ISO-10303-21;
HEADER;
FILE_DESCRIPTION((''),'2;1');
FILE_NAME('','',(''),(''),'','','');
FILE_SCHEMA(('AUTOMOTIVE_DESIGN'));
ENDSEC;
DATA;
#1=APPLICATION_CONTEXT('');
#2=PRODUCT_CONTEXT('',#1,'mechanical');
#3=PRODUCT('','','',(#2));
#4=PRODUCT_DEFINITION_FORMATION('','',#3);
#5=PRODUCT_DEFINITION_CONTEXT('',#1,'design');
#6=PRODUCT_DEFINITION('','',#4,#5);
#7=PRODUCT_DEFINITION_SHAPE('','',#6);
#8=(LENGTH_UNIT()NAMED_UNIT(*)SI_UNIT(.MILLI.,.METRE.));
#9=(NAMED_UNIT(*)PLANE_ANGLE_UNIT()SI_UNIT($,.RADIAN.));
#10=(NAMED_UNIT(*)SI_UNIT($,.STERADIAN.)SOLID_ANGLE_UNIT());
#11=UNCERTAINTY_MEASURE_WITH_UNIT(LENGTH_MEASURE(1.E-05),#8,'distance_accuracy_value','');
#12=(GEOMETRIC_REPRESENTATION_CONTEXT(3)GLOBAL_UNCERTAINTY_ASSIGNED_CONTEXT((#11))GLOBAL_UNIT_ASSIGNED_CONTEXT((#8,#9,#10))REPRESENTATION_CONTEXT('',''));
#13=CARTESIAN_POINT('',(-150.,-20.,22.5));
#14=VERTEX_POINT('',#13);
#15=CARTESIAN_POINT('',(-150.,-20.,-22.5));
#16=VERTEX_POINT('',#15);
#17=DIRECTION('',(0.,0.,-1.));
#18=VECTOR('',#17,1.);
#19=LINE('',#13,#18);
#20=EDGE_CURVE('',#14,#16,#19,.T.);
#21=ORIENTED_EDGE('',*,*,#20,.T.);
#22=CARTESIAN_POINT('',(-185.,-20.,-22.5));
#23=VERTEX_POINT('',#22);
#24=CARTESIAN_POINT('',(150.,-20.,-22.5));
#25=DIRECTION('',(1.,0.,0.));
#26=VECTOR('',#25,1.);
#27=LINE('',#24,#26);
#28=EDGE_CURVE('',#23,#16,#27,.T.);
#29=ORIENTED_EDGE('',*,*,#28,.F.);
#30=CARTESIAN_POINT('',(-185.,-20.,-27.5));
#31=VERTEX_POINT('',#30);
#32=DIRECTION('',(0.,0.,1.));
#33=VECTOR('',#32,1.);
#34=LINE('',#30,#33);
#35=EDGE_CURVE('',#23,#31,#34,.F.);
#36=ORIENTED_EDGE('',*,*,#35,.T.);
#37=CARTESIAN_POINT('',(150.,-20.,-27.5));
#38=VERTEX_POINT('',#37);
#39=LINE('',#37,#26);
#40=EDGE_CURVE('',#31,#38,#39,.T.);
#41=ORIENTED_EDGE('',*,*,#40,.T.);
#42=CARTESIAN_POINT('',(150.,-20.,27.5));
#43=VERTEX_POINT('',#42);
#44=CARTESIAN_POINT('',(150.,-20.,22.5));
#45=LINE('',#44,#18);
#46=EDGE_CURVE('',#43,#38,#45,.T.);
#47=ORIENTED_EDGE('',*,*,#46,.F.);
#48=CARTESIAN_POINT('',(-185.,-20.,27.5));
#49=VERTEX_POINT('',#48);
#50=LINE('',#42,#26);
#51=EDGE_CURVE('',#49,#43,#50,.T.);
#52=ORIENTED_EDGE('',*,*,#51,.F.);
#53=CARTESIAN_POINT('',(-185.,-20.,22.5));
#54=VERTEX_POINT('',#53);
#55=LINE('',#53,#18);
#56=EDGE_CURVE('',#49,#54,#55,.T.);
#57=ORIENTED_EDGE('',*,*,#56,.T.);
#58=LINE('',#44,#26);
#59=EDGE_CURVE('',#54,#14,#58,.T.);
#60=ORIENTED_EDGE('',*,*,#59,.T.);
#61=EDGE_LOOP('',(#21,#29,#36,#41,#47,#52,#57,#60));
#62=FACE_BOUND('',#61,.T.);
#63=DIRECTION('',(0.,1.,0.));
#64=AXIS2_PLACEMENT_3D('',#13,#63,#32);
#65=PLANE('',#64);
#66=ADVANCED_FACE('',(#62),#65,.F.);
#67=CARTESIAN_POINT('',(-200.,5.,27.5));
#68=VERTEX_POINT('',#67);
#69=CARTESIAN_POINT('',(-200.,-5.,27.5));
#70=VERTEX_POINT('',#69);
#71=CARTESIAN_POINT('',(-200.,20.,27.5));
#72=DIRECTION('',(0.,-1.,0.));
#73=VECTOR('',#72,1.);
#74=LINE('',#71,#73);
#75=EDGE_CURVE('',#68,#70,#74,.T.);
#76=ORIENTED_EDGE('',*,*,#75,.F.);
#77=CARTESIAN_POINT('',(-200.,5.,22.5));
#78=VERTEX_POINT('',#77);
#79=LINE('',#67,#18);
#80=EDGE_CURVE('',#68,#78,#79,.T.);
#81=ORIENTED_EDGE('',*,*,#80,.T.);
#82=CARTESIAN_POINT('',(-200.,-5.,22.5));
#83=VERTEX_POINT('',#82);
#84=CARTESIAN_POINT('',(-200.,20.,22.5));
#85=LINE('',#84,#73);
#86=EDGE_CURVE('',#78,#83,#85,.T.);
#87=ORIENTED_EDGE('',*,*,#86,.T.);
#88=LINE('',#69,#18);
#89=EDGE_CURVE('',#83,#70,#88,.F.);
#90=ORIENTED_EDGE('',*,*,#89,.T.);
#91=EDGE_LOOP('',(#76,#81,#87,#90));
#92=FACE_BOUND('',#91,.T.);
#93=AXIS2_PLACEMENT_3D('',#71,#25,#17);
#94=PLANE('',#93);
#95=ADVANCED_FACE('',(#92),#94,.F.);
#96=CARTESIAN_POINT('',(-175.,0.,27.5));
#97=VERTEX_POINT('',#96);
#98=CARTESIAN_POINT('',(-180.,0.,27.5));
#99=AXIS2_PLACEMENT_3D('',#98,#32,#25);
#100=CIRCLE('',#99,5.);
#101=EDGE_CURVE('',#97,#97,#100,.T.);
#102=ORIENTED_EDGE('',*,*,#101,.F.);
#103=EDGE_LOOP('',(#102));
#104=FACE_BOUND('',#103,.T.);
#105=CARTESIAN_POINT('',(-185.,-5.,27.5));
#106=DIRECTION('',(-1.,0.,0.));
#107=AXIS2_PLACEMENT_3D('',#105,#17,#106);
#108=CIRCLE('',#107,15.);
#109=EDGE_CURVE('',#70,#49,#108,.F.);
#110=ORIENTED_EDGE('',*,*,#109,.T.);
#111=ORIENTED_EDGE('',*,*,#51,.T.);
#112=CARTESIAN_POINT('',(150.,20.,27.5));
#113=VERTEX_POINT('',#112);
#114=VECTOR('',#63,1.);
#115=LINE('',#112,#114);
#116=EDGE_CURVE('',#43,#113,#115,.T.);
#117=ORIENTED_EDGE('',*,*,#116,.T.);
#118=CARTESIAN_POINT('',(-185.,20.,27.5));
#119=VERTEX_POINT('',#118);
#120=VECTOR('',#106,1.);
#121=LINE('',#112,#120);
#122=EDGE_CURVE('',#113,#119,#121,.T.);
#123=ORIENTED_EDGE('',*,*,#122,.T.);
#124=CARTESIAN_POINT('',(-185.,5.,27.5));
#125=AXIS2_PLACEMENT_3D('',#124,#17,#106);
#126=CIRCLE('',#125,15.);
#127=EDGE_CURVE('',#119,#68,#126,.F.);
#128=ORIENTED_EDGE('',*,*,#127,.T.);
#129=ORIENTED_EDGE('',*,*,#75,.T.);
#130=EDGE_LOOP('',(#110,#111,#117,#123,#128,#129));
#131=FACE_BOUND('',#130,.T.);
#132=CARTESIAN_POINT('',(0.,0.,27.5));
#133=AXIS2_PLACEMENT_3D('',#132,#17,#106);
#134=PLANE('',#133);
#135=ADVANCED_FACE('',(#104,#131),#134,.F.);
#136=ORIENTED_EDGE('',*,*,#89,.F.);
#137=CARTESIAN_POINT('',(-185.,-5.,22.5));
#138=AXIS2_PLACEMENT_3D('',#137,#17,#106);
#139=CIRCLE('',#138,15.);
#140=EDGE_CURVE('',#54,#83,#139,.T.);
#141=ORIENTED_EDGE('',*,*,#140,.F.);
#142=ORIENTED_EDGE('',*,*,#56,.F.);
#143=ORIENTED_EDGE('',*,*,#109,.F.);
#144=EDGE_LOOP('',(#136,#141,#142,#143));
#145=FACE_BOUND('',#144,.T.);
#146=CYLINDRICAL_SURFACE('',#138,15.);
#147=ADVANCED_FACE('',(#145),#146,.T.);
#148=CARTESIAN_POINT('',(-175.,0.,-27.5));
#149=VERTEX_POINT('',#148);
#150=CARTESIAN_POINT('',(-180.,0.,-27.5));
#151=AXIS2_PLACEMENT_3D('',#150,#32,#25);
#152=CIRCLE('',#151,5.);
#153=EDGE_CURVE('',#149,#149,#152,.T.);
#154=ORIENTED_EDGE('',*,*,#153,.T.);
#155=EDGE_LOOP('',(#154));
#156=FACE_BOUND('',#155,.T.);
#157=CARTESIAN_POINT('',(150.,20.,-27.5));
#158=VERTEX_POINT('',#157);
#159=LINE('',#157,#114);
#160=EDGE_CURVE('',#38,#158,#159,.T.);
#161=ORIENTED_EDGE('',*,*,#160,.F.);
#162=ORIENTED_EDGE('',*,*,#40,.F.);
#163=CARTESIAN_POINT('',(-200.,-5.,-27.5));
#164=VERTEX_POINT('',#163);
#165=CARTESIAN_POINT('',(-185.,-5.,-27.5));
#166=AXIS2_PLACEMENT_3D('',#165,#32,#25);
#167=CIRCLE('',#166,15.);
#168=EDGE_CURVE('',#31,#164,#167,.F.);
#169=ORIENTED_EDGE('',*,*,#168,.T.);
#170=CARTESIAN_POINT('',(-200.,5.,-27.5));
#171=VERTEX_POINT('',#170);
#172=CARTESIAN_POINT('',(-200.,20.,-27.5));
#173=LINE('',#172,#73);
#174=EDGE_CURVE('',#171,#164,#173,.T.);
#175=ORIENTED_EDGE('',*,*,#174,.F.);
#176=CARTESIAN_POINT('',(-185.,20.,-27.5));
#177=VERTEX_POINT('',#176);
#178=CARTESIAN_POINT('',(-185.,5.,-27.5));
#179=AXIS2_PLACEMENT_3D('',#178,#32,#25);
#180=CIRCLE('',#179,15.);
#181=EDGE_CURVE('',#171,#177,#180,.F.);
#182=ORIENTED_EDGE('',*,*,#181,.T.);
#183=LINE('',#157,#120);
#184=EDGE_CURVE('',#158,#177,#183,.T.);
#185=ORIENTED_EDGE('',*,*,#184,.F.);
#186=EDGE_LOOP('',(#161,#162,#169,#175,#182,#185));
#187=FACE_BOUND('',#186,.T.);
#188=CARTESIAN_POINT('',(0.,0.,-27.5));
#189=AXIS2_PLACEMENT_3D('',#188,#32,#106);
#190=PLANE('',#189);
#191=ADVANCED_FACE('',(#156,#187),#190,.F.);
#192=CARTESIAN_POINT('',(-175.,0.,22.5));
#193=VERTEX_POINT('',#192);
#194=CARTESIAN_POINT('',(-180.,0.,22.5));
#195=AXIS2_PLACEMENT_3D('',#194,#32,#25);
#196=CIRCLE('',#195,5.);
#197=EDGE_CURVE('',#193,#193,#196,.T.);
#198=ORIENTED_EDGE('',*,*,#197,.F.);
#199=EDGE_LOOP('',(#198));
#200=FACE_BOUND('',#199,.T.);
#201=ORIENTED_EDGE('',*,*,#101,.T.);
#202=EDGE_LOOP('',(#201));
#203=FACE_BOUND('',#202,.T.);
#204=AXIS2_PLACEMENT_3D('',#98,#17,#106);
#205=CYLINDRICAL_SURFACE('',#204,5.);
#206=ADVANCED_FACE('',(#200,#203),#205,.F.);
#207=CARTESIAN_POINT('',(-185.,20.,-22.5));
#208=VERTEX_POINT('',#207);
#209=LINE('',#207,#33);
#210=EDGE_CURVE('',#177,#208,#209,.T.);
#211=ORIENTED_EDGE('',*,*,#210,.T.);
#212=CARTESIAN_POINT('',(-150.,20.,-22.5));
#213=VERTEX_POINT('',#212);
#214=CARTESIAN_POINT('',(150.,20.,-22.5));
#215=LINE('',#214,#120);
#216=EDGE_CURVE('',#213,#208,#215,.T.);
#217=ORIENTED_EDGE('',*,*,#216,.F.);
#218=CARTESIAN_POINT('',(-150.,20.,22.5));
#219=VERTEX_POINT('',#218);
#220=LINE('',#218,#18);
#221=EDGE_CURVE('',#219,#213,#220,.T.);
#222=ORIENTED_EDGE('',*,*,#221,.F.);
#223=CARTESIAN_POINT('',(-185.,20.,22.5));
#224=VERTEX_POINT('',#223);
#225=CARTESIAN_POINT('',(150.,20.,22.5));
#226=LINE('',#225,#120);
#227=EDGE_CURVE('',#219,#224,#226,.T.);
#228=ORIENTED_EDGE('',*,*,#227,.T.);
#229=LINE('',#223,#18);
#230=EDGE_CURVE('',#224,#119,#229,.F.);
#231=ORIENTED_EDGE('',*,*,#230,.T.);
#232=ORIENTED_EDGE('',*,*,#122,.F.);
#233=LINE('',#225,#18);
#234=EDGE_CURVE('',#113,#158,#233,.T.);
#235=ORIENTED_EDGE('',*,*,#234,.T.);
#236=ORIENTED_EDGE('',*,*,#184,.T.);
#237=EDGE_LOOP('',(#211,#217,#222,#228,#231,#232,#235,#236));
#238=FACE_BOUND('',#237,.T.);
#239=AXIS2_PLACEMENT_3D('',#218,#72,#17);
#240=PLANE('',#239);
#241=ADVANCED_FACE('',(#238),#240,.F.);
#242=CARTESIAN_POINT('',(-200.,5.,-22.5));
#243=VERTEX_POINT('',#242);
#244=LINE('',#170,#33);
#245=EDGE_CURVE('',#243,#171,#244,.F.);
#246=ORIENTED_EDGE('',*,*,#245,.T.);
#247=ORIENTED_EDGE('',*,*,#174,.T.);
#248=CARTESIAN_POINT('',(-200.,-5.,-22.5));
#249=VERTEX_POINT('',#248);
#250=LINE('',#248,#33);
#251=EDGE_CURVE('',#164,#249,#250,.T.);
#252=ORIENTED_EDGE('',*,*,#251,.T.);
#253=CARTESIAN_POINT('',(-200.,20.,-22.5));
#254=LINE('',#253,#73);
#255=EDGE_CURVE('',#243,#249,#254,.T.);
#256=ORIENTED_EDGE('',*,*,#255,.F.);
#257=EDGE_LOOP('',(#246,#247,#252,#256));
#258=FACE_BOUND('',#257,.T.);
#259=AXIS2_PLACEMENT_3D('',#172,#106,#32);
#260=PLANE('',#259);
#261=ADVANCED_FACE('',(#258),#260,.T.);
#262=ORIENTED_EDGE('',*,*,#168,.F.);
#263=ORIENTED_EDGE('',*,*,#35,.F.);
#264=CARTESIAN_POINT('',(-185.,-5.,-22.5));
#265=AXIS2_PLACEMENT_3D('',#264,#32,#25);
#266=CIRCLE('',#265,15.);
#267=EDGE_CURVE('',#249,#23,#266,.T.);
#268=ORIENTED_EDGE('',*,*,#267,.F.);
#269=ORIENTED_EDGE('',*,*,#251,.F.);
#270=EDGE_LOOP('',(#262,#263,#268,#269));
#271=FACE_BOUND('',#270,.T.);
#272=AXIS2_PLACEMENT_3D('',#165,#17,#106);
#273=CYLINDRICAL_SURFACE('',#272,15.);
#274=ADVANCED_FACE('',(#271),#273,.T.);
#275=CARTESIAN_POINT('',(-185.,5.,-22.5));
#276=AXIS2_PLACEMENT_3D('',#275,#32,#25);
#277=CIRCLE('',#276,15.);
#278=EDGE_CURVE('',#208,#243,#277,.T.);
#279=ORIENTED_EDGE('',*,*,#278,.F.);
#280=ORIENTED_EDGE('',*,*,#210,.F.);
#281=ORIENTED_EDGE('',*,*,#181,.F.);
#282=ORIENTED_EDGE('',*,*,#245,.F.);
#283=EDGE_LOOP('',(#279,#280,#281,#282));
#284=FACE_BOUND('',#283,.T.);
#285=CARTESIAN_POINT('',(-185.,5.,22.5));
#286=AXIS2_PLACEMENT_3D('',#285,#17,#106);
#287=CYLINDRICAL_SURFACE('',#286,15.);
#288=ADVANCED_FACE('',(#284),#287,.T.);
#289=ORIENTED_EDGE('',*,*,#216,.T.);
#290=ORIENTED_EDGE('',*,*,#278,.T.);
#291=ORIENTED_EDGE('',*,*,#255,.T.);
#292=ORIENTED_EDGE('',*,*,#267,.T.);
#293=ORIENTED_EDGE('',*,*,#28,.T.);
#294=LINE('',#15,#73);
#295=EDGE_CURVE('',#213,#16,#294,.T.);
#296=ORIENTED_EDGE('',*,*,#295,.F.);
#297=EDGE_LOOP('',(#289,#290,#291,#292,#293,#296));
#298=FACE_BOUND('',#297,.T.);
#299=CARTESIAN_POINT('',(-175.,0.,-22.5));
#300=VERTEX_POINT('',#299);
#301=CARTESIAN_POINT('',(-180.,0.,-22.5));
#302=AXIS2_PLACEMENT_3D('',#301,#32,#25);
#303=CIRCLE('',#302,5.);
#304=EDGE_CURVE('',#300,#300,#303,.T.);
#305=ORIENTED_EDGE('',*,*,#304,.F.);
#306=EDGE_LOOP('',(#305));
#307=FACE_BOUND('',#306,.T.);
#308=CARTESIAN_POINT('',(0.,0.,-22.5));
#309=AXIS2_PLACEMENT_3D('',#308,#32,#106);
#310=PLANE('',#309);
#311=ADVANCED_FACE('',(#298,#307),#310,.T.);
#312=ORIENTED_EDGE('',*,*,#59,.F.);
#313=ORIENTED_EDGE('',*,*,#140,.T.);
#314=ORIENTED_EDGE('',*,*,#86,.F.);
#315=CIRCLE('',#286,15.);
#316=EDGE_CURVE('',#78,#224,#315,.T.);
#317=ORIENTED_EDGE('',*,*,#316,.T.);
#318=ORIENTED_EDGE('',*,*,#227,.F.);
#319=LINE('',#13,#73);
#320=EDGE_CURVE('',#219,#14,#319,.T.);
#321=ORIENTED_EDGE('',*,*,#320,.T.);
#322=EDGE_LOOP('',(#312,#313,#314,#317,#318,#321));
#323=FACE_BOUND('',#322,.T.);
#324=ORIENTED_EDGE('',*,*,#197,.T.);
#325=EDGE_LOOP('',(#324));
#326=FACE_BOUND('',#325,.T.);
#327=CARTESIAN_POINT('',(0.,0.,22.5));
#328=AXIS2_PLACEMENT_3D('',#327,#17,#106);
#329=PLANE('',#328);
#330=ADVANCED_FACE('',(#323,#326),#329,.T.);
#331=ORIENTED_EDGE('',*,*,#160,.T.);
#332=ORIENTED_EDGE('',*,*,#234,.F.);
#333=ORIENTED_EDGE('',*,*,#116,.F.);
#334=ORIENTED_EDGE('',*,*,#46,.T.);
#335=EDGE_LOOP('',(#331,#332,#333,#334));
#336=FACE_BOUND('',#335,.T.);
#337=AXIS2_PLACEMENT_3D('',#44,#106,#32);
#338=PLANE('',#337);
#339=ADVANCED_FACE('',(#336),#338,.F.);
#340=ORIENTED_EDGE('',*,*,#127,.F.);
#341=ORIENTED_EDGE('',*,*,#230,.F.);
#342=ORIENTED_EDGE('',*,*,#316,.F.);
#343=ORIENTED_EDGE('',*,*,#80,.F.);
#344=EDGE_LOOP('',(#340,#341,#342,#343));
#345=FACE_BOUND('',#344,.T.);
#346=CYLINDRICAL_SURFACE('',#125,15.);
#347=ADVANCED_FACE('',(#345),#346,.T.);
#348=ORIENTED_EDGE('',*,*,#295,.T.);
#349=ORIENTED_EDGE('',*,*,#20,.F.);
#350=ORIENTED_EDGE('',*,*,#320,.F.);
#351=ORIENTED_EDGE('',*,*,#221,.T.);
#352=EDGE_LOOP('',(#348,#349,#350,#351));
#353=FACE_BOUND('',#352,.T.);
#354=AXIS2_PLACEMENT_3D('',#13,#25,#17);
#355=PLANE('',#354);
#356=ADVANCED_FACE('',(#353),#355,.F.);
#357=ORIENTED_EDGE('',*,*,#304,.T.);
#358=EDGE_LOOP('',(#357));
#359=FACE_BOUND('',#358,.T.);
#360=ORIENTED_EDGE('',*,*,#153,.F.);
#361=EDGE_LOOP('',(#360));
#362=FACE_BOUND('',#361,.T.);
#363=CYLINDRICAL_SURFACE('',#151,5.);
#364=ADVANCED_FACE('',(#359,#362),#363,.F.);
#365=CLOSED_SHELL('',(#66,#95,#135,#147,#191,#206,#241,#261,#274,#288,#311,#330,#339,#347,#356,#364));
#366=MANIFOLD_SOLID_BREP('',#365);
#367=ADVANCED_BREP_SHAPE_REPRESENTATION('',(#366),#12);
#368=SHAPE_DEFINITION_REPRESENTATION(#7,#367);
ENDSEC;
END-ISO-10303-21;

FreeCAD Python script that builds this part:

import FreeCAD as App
import Part
import Sketcher

V = App.Vector


def edges_at(feature, points):
    """Names of the edges that pass closest to the given points."""
    edges = feature.Shape.Edges
    near = lambda p: min(range(len(edges)), key=lambda i: edges[i].distToShape(Part.Vertex(*p))[0])
    return sorted({f"Edge{near(p) + 1}" for p in points})

doc = App.newDocument("Part")
body = doc.addObject("PartDesign::Body", "Body")

sketch1 = doc.addObject("Sketcher::SketchObject", "Sketch")
body.addObject(sketch1)
sketch1.AttachmentSupport = (doc.XY_Plane, [""])
sketch1.MapMode = "FlatFace"
sketch1.addGeometry([
    Part.LineSegment(V(-150, 20, 0), V(-150, -20, 0)),
    Part.LineSegment(V(-150, -20, 0), V(150, -20, 0)),
    Part.LineSegment(V(150, -20, 0), V(150, 20, 0)),
    Part.LineSegment(V(150, 20, 0), V(-150, 20, 0)),
], False)
sketch1.addConstraint([
    Sketcher.Constraint("Coincident", 0, 2, 1, 1),
    Sketcher.Constraint("Coincident", 1, 2, 2, 1),
    Sketcher.Constraint("Coincident", 2, 2, 3, 1),
    Sketcher.Constraint("Coincident", 3, 2, 0, 1),
    Sketcher.Constraint("Vertical", 0),
    Sketcher.Constraint("Horizontal", 1),
    Sketcher.Constraint("Vertical", 2),
    Sketcher.Constraint("Horizontal", 3),
    Sketcher.Constraint("Symmetric", 0, 2, 2, 2, -1, 1),
    Sketcher.Constraint("DistanceX", 1, 1, 1, 2, 300.0),
    Sketcher.Constraint("DistanceY", 0, 2, 0, 1, 40.0),
])
pad1 = doc.addObject("PartDesign::Pad", "Pad")
body.addObject(pad1)
pad1.Profile = sketch1
pad1.Length = 45
pad1.Midplane = True

sketch2 = doc.addObject("Sketcher::SketchObject", "Sketch001")
body.addObject(sketch2)
sketch2.AttachmentSupport = (doc.XY_Plane, [""])
sketch2.MapMode = "FlatFace"
sketch2.AttachmentOffset = App.Placement(V(0, 0, 22.5), App.Rotation())
sketch2.addGeometry([
    Part.LineSegment(V(-200, 20, 0), V(-200, -20, 0)),
    Part.LineSegment(V(-200, -20, 0), V(150, -20, 0)),
    Part.LineSegment(V(150, -20, 0), V(150, 20, 0)),
    Part.LineSegment(V(150, 20, 0), V(-200, 20, 0)),
    Part.Circle(V(-180, 0, 0), V(0, 0, 1), 5),
], False)
sketch2.addConstraint([
    Sketcher.Constraint("Coincident", 0, 2, 1, 1),
    Sketcher.Constraint("Coincident", 1, 2, 2, 1),
    Sketcher.Constraint("Coincident", 2, 2, 3, 1),
    Sketcher.Constraint("Coincident", 3, 2, 0, 1),
    Sketcher.Constraint("Vertical", 0),
    Sketcher.Constraint("Horizontal", 1),
    Sketcher.Constraint("Vertical", 2),
    Sketcher.Constraint("Horizontal", 3),
    Sketcher.Constraint("PointOnObject", 4, 3, -1),
    Sketcher.Constraint("Diameter", 4, 10.0),
    Sketcher.Constraint("DistanceX", 1, 1, 1, 2, 350.0),
    Sketcher.Constraint("DistanceY", 0, 2, 0, 1, 40.0),
    Sketcher.Constraint("DistanceX", 4, 3, -1, 1, 180.0),
    Sketcher.Constraint("DistanceX", 0, 2, -1, 1, 200.0),
    Sketcher.Constraint("DistanceY", 0, 2, -1, 1, 20.0),
])
pad2 = doc.addObject("PartDesign::Pad", "Pad001")
body.addObject(pad2)
pad2.Profile = sketch2
pad2.Length = 5
doc.recompute()

fillet = doc.addObject("PartDesign::Fillet", "Fillet")
body.addObject(fillet)
fillet.Base = (pad2, edges_at(pad2, [(-200, -20, 25), (-200, 20, 25)]))
fillet.Radius = 15
doc.recompute()

mirrored = doc.addObject("PartDesign::Mirrored", "Mirrored")
body.addObject(mirrored)
mirrored.Originals = [pad2]
mirrored.MirrorPlane = (doc.XY_Plane, [""])
body.Tip = mirrored
doc.recompute()

fillet2 = doc.addObject("PartDesign::Fillet", "Fillet001")
body.addObject(fillet2)
fillet2.Base = (mirrored, edges_at(mirrored, [(-200, -20, -25), (-200, 20, -25)]))
fillet2.Radius = 15

doc.recompute()
